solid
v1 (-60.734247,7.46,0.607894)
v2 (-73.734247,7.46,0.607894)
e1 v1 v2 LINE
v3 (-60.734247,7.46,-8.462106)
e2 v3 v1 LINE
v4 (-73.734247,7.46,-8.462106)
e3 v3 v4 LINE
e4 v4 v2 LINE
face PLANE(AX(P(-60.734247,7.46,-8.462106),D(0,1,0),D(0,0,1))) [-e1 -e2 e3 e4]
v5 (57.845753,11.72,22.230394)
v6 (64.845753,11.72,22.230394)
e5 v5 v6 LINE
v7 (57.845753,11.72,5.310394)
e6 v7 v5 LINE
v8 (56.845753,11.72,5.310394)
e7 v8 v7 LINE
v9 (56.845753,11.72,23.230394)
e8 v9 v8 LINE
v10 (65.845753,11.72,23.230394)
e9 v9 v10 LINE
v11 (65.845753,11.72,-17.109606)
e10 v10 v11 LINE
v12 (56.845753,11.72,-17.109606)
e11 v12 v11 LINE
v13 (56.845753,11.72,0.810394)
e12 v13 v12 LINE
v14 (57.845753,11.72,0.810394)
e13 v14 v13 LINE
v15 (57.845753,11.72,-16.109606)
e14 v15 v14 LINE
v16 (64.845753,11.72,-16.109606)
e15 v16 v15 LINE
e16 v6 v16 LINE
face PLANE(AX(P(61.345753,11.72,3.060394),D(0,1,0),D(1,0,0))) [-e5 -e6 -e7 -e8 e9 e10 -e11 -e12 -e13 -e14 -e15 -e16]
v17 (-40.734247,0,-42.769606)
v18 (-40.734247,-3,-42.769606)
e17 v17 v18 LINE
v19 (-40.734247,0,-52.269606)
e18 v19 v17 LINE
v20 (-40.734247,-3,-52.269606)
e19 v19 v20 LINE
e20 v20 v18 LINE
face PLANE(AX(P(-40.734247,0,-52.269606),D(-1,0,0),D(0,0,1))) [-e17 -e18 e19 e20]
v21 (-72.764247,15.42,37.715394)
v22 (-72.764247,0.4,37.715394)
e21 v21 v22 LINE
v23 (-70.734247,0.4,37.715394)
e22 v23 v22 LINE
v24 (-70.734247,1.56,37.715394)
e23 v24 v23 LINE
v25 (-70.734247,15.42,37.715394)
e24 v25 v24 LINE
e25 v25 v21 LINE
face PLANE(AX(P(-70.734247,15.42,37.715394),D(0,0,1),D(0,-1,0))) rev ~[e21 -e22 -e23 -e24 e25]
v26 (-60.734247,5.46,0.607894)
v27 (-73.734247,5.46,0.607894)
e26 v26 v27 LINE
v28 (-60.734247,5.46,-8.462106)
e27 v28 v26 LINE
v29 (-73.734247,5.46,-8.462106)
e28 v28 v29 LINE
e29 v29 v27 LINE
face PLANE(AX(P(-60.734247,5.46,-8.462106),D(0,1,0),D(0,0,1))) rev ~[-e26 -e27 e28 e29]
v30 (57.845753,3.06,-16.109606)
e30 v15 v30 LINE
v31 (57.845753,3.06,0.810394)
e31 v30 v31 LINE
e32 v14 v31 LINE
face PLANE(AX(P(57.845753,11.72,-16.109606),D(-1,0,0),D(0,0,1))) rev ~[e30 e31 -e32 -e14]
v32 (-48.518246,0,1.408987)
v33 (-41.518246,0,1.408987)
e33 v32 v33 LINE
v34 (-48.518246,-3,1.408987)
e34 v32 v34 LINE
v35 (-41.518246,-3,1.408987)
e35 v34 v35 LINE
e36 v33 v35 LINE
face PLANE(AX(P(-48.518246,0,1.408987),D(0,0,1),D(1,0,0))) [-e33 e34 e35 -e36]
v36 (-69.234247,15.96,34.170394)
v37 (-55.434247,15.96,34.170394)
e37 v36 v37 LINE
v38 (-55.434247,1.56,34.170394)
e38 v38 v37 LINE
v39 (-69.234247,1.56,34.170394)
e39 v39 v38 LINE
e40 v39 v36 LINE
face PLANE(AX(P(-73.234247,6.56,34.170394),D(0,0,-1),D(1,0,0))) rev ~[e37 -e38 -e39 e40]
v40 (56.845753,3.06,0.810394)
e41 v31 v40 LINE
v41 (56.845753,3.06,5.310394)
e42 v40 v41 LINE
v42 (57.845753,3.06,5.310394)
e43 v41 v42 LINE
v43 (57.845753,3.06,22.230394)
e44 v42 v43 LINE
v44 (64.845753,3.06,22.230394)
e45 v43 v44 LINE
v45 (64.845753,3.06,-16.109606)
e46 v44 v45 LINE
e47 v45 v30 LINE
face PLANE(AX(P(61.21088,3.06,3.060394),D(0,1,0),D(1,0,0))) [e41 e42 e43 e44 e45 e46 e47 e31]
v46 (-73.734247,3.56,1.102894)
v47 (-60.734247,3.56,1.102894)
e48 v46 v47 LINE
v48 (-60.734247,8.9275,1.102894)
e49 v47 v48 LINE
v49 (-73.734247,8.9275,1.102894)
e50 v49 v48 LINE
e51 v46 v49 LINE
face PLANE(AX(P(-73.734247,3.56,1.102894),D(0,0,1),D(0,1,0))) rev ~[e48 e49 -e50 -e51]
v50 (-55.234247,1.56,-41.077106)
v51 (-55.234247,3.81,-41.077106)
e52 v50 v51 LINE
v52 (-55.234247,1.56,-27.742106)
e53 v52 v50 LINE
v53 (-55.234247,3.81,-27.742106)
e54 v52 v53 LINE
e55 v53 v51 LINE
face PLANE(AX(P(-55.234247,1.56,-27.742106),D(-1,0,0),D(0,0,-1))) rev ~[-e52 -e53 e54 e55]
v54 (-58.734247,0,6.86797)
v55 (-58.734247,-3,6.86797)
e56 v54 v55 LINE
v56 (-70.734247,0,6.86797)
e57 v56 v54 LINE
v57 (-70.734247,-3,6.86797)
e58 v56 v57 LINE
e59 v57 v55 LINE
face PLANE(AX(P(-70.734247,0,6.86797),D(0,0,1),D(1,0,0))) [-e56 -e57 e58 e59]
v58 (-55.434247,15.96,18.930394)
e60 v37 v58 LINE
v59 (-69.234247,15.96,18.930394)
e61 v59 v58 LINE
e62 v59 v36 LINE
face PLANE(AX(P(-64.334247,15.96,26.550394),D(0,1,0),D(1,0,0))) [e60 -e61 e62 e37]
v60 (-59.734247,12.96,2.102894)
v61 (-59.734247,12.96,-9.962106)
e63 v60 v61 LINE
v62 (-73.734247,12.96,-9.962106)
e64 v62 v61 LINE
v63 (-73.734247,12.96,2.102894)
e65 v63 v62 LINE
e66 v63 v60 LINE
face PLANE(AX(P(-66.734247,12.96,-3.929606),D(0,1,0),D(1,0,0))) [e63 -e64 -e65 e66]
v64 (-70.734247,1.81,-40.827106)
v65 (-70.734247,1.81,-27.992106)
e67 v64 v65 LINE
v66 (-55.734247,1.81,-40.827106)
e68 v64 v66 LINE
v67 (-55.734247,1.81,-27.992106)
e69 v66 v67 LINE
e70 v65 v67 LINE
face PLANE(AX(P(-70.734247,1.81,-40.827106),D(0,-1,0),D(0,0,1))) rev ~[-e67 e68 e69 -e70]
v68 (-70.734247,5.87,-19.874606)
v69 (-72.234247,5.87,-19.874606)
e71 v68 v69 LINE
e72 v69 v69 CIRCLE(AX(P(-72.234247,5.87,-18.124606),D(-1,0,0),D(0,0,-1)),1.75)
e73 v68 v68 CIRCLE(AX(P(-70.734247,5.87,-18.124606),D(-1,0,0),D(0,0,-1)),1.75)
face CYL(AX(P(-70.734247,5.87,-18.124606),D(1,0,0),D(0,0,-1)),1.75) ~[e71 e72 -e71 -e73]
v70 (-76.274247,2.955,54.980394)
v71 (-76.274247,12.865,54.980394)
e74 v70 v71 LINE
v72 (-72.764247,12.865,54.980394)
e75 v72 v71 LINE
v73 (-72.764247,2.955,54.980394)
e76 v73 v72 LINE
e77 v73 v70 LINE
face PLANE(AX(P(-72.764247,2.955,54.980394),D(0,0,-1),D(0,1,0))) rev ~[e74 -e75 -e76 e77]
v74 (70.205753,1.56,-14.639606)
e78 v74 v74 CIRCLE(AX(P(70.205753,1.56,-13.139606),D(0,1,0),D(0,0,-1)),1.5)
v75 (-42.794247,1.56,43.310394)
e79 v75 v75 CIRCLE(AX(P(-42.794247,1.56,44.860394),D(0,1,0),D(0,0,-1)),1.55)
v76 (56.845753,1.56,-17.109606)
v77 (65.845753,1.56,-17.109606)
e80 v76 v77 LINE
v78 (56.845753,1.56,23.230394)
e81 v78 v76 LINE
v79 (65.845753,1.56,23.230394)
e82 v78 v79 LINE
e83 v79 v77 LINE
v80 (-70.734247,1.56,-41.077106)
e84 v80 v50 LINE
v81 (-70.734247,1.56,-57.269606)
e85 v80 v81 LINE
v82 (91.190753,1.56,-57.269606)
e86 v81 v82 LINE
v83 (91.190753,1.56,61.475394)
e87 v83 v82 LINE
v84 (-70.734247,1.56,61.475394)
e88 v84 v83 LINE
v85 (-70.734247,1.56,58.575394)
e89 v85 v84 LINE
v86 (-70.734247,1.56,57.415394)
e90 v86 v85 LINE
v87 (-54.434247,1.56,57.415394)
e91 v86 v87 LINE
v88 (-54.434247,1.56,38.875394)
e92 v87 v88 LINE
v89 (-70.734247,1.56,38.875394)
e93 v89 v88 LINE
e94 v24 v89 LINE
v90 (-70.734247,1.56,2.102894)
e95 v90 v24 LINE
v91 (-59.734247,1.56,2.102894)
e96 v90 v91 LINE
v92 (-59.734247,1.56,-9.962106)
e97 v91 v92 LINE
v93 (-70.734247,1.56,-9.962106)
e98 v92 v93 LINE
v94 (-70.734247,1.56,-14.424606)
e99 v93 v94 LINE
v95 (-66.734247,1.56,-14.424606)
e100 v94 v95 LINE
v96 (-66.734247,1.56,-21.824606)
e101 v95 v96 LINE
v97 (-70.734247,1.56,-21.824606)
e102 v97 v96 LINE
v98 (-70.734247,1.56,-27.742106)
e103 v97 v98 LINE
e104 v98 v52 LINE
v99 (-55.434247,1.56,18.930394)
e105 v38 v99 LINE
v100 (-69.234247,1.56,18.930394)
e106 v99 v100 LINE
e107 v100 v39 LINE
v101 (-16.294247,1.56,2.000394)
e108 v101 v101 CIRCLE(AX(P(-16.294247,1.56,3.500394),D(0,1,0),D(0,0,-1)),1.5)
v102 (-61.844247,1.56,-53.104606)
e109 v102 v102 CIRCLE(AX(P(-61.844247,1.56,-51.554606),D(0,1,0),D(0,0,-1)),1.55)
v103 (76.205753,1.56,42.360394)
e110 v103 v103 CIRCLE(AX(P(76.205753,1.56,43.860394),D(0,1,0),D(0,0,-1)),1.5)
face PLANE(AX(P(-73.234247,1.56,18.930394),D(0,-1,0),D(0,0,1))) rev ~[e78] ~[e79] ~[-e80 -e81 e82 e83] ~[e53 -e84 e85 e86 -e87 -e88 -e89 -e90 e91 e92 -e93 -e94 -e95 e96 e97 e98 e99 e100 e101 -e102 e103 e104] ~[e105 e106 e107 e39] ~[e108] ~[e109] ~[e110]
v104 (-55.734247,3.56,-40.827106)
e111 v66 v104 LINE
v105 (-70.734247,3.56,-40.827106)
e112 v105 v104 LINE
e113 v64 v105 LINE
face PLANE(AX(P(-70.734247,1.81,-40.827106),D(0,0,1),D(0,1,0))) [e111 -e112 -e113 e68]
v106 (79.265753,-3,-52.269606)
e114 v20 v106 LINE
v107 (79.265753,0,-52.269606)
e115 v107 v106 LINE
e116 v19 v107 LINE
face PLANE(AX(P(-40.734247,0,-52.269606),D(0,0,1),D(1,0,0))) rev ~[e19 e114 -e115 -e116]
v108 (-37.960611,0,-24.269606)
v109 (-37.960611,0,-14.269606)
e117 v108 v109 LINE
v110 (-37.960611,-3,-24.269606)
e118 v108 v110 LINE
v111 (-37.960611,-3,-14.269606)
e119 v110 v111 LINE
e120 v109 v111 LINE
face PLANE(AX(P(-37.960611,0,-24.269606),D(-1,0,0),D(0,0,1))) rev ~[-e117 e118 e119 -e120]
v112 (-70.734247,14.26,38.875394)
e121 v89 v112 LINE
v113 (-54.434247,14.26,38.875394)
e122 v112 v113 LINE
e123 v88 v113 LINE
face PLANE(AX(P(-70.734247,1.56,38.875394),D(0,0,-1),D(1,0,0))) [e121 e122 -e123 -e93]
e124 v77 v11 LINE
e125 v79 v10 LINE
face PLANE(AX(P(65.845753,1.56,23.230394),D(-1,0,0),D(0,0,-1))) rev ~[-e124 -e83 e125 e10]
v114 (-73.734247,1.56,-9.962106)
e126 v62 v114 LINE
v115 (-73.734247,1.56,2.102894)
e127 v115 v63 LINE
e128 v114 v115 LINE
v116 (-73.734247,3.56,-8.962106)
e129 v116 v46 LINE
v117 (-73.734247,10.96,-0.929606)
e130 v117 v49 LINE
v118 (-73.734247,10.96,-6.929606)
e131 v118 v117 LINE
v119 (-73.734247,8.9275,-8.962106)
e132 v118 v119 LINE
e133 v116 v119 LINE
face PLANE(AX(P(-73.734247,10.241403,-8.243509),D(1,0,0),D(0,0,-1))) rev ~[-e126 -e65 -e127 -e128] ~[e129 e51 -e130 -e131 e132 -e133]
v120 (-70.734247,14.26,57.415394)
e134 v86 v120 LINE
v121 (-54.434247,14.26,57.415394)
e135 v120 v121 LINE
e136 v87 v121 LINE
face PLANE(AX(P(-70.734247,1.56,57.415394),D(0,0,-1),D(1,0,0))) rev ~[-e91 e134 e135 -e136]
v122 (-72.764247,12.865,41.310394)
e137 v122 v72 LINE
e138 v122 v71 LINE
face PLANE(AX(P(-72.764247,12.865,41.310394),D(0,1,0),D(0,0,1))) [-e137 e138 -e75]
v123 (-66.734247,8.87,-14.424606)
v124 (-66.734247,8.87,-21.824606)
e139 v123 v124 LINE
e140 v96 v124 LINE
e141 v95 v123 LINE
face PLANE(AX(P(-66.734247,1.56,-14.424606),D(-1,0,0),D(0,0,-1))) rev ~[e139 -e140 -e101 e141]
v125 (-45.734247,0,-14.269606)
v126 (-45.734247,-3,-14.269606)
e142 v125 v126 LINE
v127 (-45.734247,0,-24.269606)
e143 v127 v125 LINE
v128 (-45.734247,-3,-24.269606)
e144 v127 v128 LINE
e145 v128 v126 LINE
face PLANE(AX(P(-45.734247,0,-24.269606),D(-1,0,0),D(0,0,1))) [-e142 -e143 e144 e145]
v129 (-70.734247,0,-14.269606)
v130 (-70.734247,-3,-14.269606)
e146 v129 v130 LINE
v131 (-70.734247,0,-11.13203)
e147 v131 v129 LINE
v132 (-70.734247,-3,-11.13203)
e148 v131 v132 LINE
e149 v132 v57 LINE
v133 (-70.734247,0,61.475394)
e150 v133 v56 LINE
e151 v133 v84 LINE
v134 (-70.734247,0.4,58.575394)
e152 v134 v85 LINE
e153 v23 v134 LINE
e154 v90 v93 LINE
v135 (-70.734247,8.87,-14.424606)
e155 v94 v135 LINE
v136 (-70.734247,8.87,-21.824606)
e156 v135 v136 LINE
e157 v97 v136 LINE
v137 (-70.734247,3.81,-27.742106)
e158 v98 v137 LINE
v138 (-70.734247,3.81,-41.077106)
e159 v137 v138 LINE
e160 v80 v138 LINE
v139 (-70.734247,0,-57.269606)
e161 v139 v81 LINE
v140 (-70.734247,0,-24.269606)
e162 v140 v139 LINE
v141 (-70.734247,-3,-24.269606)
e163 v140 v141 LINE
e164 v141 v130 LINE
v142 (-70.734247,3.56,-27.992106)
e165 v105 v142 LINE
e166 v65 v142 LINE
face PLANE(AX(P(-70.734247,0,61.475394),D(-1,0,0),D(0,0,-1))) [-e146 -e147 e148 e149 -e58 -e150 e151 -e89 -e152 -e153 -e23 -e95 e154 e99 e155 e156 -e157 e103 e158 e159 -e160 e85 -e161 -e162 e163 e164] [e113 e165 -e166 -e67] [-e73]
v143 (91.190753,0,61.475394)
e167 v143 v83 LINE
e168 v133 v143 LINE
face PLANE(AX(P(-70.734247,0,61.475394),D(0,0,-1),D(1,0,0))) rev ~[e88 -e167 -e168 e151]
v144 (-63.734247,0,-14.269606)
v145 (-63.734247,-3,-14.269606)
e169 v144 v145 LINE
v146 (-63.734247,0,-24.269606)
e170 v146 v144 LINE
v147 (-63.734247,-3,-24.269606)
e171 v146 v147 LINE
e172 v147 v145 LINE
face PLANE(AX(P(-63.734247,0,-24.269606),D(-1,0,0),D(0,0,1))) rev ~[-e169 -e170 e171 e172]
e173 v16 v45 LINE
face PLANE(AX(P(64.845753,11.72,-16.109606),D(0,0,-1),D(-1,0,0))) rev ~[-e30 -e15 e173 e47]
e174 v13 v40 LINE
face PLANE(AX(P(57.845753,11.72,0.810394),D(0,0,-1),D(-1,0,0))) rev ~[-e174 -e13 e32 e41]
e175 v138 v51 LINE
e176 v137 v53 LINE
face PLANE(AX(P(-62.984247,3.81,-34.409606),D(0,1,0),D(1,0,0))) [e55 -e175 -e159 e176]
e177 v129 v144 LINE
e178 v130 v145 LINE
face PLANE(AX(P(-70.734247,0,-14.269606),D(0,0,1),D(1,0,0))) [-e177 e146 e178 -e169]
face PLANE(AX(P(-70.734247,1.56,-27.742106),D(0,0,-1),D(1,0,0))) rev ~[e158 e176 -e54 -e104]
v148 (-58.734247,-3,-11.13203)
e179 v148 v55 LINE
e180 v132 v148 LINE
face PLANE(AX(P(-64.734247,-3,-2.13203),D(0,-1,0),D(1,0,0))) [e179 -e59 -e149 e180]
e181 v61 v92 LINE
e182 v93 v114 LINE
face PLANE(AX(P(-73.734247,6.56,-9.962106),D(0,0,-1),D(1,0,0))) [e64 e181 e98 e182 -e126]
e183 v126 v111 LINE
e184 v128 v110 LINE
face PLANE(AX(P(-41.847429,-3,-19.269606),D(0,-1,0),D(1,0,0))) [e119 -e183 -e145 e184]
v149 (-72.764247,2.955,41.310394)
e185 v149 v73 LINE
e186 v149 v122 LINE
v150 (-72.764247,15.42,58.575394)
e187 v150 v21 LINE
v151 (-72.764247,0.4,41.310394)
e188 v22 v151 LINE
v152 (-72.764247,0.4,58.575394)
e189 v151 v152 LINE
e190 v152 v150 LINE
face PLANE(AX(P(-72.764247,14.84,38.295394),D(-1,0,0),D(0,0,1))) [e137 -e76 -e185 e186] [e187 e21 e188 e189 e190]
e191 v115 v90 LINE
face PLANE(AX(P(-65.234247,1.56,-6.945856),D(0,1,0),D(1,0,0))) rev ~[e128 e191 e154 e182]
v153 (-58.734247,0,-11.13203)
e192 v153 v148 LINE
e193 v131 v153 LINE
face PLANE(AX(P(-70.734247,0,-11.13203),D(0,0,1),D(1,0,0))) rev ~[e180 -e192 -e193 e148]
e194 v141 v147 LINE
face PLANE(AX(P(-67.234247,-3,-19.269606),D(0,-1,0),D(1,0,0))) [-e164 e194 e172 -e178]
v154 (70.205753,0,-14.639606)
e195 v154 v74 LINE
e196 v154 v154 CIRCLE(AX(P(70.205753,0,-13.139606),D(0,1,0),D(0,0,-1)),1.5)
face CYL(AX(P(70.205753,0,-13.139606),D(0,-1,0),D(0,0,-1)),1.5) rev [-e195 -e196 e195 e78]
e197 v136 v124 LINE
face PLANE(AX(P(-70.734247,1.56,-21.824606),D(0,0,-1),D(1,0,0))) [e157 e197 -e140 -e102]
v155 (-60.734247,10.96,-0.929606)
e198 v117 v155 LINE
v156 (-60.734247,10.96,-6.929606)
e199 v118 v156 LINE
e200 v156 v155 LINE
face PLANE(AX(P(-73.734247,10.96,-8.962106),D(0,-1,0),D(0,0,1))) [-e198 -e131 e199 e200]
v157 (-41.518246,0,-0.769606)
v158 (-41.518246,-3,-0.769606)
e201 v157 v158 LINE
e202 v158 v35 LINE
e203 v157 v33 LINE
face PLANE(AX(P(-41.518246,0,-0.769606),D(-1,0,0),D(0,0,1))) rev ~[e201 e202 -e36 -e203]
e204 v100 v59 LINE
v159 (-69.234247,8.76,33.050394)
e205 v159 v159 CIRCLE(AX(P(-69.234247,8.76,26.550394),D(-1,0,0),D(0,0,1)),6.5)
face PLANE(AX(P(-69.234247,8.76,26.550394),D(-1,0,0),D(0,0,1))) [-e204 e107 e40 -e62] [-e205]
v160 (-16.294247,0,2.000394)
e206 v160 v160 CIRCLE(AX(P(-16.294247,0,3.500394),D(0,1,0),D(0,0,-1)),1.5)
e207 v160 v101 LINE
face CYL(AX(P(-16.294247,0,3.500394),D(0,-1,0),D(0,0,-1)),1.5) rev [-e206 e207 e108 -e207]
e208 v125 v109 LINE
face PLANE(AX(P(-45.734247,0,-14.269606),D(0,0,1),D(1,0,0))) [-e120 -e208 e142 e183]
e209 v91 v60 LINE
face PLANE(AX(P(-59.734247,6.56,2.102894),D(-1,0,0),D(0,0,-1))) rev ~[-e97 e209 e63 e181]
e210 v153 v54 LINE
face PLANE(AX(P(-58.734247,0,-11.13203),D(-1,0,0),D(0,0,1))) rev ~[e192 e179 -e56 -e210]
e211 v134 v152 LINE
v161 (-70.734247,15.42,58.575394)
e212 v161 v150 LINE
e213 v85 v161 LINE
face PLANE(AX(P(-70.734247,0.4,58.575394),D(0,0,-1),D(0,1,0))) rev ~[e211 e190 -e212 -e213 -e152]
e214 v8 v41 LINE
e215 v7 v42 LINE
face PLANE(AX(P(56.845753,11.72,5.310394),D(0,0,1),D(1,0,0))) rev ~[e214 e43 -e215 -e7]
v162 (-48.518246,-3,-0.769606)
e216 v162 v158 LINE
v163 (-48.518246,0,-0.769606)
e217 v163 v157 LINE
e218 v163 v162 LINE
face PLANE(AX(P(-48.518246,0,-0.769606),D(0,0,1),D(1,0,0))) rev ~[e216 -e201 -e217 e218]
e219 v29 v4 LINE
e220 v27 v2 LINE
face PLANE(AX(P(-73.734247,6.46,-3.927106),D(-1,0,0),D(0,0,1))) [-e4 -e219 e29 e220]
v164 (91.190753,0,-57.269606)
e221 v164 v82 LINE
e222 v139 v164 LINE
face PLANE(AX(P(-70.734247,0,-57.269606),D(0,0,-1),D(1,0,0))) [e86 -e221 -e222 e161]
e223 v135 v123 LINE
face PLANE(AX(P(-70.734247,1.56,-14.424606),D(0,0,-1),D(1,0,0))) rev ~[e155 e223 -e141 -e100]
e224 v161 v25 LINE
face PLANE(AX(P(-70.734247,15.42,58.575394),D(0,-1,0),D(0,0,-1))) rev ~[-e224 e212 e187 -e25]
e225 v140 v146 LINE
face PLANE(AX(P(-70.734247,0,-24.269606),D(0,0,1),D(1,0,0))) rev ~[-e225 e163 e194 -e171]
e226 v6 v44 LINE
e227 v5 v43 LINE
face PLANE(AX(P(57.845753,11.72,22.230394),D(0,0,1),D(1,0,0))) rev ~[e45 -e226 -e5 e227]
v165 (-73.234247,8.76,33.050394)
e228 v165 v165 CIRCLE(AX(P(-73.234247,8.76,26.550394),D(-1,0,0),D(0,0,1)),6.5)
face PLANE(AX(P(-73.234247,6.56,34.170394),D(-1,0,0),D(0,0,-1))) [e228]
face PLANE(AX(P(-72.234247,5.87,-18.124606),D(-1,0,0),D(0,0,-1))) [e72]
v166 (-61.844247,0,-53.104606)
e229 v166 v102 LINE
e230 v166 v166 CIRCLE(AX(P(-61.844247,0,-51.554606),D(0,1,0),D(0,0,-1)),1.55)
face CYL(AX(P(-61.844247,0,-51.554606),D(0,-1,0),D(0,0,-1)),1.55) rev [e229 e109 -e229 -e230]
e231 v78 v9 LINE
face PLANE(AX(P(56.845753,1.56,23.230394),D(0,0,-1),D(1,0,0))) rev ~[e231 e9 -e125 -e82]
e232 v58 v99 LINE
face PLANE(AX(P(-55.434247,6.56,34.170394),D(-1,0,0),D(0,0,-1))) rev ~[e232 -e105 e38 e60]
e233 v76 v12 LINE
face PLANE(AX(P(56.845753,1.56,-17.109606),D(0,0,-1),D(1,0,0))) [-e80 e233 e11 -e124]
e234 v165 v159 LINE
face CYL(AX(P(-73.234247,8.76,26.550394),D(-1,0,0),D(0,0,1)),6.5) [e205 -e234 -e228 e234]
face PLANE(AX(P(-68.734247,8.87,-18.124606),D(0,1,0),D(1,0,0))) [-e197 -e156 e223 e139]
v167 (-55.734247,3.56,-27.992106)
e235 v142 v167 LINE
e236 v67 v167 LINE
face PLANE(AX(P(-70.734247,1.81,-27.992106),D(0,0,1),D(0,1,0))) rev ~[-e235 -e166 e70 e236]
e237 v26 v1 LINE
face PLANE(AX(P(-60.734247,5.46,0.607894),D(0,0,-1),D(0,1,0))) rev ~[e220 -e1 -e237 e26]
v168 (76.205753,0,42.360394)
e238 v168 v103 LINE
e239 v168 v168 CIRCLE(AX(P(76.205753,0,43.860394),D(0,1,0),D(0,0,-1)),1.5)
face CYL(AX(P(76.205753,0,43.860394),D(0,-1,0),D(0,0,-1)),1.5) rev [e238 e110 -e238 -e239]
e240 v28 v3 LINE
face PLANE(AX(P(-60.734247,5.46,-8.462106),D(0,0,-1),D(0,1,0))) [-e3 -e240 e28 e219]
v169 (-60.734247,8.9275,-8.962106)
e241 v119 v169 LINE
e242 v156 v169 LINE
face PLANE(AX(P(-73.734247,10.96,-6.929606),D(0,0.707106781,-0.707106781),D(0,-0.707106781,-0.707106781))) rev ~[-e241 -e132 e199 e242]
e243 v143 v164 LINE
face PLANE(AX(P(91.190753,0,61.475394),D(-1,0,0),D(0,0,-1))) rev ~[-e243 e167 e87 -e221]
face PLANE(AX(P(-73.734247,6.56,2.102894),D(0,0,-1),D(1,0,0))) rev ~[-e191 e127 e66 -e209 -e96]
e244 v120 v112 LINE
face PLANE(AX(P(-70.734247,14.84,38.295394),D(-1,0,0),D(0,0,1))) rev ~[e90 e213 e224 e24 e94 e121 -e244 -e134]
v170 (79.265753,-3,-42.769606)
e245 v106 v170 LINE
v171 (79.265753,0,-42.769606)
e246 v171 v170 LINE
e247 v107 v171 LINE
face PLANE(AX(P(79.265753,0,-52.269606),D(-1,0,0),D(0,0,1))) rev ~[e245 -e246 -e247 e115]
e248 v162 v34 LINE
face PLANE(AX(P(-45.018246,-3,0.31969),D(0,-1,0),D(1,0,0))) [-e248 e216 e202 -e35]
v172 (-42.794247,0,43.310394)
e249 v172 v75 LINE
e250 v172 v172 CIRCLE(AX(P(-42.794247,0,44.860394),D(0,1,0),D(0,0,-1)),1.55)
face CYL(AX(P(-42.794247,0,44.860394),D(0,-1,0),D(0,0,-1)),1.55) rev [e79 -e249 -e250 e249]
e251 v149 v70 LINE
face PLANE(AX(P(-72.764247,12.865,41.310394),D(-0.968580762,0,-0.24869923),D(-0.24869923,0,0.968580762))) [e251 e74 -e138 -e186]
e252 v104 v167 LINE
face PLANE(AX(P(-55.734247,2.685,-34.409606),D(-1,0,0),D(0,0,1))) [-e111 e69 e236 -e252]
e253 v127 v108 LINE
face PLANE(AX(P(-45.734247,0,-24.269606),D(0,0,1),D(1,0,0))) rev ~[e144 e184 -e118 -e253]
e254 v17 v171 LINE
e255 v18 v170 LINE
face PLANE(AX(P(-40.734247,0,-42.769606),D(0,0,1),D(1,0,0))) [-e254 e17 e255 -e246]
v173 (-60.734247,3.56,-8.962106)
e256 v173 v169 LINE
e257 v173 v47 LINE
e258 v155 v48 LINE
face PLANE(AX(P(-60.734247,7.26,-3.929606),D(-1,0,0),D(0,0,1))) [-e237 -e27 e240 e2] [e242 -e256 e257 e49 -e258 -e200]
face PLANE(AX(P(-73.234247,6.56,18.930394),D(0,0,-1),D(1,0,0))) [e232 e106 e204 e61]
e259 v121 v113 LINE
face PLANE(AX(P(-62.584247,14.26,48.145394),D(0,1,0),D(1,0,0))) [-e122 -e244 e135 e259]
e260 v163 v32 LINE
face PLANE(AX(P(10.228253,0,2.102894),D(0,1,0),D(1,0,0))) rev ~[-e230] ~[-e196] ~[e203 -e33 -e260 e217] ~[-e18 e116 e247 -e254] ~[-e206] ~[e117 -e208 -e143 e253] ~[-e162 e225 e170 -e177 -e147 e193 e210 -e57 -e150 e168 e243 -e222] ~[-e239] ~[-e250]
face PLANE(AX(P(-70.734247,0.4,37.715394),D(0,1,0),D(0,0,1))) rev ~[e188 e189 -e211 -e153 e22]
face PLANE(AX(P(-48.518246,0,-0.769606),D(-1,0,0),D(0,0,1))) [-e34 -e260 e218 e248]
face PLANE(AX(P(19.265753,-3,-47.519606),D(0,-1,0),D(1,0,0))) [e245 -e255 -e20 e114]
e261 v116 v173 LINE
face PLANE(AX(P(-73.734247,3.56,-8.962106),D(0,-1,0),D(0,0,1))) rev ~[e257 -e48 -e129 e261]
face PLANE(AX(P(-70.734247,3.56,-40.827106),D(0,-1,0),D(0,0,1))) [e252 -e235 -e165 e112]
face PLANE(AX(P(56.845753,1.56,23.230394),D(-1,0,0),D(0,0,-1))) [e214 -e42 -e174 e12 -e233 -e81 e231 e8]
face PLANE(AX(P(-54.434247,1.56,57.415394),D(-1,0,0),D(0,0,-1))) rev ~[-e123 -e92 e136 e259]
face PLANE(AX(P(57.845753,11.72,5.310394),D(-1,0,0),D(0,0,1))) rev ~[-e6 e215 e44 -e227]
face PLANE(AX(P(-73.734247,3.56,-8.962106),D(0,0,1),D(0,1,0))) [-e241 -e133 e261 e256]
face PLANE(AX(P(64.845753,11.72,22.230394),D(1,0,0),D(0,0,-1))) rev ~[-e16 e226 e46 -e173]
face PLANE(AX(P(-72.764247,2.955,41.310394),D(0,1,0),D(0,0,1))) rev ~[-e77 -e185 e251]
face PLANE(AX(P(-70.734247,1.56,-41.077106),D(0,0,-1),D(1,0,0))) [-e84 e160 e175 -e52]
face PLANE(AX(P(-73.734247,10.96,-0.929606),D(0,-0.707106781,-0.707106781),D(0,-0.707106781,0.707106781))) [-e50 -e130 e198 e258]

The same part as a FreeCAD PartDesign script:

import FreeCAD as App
import Part
import Sketcher
Q = App.Units.Quantity


def add_polygon(sketch, points):
    """Adds a closed chain of lines whose ends are joined by coincident constraints."""
    first, n = sketch.GeometryCount, len(points)
    for a, b in zip(points, points[1:] + points[:1]):
        sketch.addGeometry(Part.LineSegment(App.Vector(*a, 0), App.Vector(*b, 0)), False)
    for i in range(n):
        sketch.addConstraint(Sketcher.Constraint("Coincident", first + i, 2, first + (i + 1) % n, 1))

doc = App.newDocument("Part")
body = doc.addObject("PartDesign::Body", "Body")

sketch1 = doc.addObject("Sketcher::SketchObject", "Sketch")
body.addObject(sketch1)
sketch1.AttachmentSupport = (doc.XZ_Plane, [""])
sketch1.MapMode = "FlatFace"
add_polygon(sketch1, [(-70.7, -57.3), (-70.7, 61.5), (91.2, 61.5), (91.2, -57.3)])
sketch1.addGeometry(Part.Circle(App.Vector(-42.8, 44.9, 0), App.Vector(0, 0, 1), 1.6), False)
sketch1.addGeometry(Part.Circle(App.Vector(-16.3, 3.5, 0), App.Vector(0, 0, 1), 1.5), False)
sketch1.addGeometry(Part.Circle(App.Vector(76.2, 43.9, 0), App.Vector(0, 0, 1), 1.5), False)
sketch1.addGeometry(Part.Circle(App.Vector(-61.8, -51.6, 0), App.Vector(0, 0, 1), 1.6), False)
sketch1.addGeometry(Part.Circle(App.Vector(70.2, -13.1, 0), App.Vector(0, 0, 1), 1.5), False)
sketch1.addConstraint([
    Sketcher.Constraint("Vertical", 0),
    Sketcher.Constraint("Horizontal", 1),
    Sketcher.Constraint("Vertical", 2),
    Sketcher.Constraint("Horizontal", 3),
    Sketcher.Constraint("Equal", 5, 6),
    Sketcher.Constraint("Equal", 4, 7),
    Sketcher.Constraint("Equal", 6, 8),
    Sketcher.Constraint("Diameter", 5, Q("3 mm")),
    Sketcher.Constraint("Diameter", 4, Q("3.1 mm")),
    Sketcher.Constraint("DistanceX", 4, 3, 6, 3, Q("119 mm")),
    Sketcher.Constraint("DistanceY", 6, 3, 4, 3, Q("1 mm")),
    Sketcher.Constraint("DistanceX", 8, 3, 6, 3, Q("6 mm")),
    Sketcher.Constraint("DistanceY", 8, 3, 6, 3, Q("57 mm")),
    Sketcher.Constraint("DistanceX", 4, 3, 5, 3, Q("26.5 mm")),
    Sketcher.Constraint("DistanceX", 1, 1, 1, 2, Q("161.925 mm")),
    Sketcher.Constraint("DistanceY", 0, 1, 0, 2, Q("118.745 mm")),
    Sketcher.Constraint("DistanceY", 5, 3, 4, 3, Q("41.36 mm")),
    Sketcher.Constraint("DistanceX", 7, 3, 5, 3, Q("45.55 mm")),
    Sketcher.Constraint("DistanceX", 0, 2, 4, 3, Q("27.94 mm")),
    Sketcher.Constraint("DistanceY", 7, 3, 0, 2, Q("113.03 mm")),
    Sketcher.Constraint("DistanceY", 2, 2, 8, 3, Q("44.13 mm")),
    Sketcher.Constraint("DistanceX", 4, 3, -1, 1, Q("42.794247 mm")),
    Sketcher.Constraint("DistanceY", -1, 1, 4, 3, Q("44.860394 mm")),
])
pad1 = doc.addObject("PartDesign::Pad", "Pad")
body.addObject(pad1)
pad1.Profile = sketch1
pad1.Length = 1.56
pad1.Reversed = True

sketch2 = doc.addObject("Sketcher::SketchObject", "Sketch001")
body.addObject(sketch2)
sketch2.AttachmentSupport = (doc.XZ_Plane, [""])
sketch2.MapMode = "FlatFace"
sketch2.AttachmentOffset = App.Placement(App.Vector(0, 0, -1.56), App.Rotation())
add_polygon(sketch2, [(-71, 38), (-71, 59), (-51, 59), (-51, 38)])
add_polygon(sketch2, [(-55, 34), (-55, 19), (-73, 19), (-73, 34)])
add_polygon(sketch2, [(-60, -10), (-74, -10), (-74, 2), (-60, 2)])
add_polygon(sketch2, [(-71, -41), (-71, -28), (-55, -28), (-55, -41)])
sketch2.addConstraint([
    Sketcher.Constraint("Vertical", 0),
    Sketcher.Constraint("Horizontal", 1),
    Sketcher.Constraint("Vertical", 2),
    Sketcher.Constraint("Horizontal", 3),
    Sketcher.Constraint("Vertical", 4),
    Sketcher.Constraint("Horizontal", 5),
    Sketcher.Constraint("Vertical", 6),
    Sketcher.Constraint("Horizontal", 7),
    Sketcher.Constraint("Horizontal", 8),
    Sketcher.Constraint("Vertical", 9),
    Sketcher.Constraint("Horizontal", 10),
    Sketcher.Constraint("Vertical", 11),
    Sketcher.Constraint("Vertical", 12),
    Sketcher.Constraint("Horizontal", 13),
    Sketcher.Constraint("Vertical", 14),
    Sketcher.Constraint("Horizontal", 15),
    Sketcher.Constraint("Vertical", 3, 2, 12, 2),
    Sketcher.Constraint("DistanceX", 1, 1, 1, 2, Q("20 mm")),
    Sketcher.Constraint("DistanceX", 8, 2, 8, 1, Q("14 mm")),
    Sketcher.Constraint("DistanceX", 5, 2, 5, 1, Q("17.8 mm")),
    Sketcher.Constraint("DistanceX", 13, 1, 13, 2, Q("15.5 mm")),
    Sketcher.Constraint("DistanceX", 8, 2, 3, 2, Q("3 mm")),
    Sketcher.Constraint("DistanceY", 4, 2, 4, 1, Q("15.24 mm")),
    Sketcher.Constraint("DistanceX", 4, 2, 2, 2, Q("4.7 mm")),
    Sketcher.Constraint("DistanceY", 0, 1, 0, 2, Q("20.955 mm")),
    Sketcher.Constraint("DistanceY", 9, 1, 9, 2, Q("12.065 mm")),
    Sketcher.Constraint("DistanceY", 12, 1, 12, 2, Q("13.335 mm")),
    Sketcher.Constraint("DistanceY", 9, 2, 3, 2, Q("35.56 mm")),
    Sketcher.Constraint("DistanceY", 12, 2, 8, 2, Q("17.78 mm")),
    Sketcher.Constraint("DistanceY", 4, 2, 2, 2, Q("18.7325 mm")),
    Sketcher.Constraint("DistanceX", 0, 2, -1, 1, Q("70.734247 mm")),
    Sketcher.Constraint("DistanceY", -1, 1, 0, 2, Q("58.617894 mm")),
])
pad2 = doc.addObject("PartDesign::Pad", "Pad001")
body.addObject(pad2)
pad2.Profile = sketch2
pad2.Length = 5
pad2.Reversed = True

sketch3 = doc.addObject("Sketcher::SketchObject", "Sketch002")
body.addObject(sketch3)
sketch3.AttachmentSupport = (doc.XZ_Plane, [""])
sketch3.MapMode = "FlatFace"
sketch3.AttachmentOffset = App.Placement(App.Vector(0, 0, -6.56), App.Rotation())
add_polygon(sketch3, [(-73, 19), (-73, 34), (-55, 34), (-55, 19)])
sketch3.addConstraint([
    Sketcher.Constraint("Vertical", 0),
    Sketcher.Constraint("Horizontal", 1),
    Sketcher.Constraint("Vertical", 2),
    Sketcher.Constraint("Horizontal", 3),
    Sketcher.Constraint("DistanceX", 1, 1, 1, 2, Q("17.8 mm")),
    Sketcher.Constraint("DistanceY", 0, 1, 0, 2, Q("15.24 mm")),
    Sketcher.Constraint("DistanceX", 0, 2, -1, 1, Q("73.234247 mm")),
    Sketcher.Constraint("DistanceY", -1, 1, 0, 2, Q("34.170394 mm")),
])
pad3 = doc.addObject("PartDesign::Pad", "Pad002")
body.addObject(pad3)
pad3.Profile = sketch3
pad3.Length = 9.4
pad3.Reversed = True

sketch4 = doc.addObject("Sketcher::SketchObject", "Sketch003")
body.addObject(sketch4)
sketch4.AttachmentSupport = (doc.YZ_Plane, [""])
sketch4.MapMode = "FlatFace"
sketch4.AttachmentOffset = App.Placement(App.Vector(0, 0, -73.234247), App.Rotation())
add_polygon(sketch4, [(16, 19), (2, 19), (2, 34), (16, 34)])
sketch4.addGeometry(Part.Circle(App.Vector(9, 27, 0), App.Vector(0, 0, 1), 6), False)
sketch4.addConstraint([
    Sketcher.Constraint("Horizontal", 0),
    Sketcher.Constraint("Vertical", 1),
    Sketcher.Constraint("Horizontal", 2),
    Sketcher.Constraint("Vertical", 3),
    Sketcher.Constraint("Diameter", 4, Q("13 mm")),
    Sketcher.Constraint("DistanceX", 0, 2, 0, 1, Q("14.4 mm")),
    Sketcher.Constraint("DistanceY", 1, 1, 1, 2, Q("15.24 mm")),
    Sketcher.Constraint("DistanceX", 0, 2, 4, 3, Q("7.2 mm")),
    Sketcher.Constraint("DistanceX", -1, 1, 4, 3, Q("8.76 mm")),
    Sketcher.Constraint("DistanceY", 0, 2, 4, 3, Q("7.62 mm")),
    Sketcher.Constraint("DistanceY", -1, 1, 4, 3, Q("26.550394 mm")),
])
pocket1 = doc.addObject("PartDesign::Pocket", "Pocket")
body.addObject(pocket1)
pocket1.Profile = sketch4
pocket1.Length = 4
pocket1.Reversed = True

sketch5 = doc.addObject("Sketcher::SketchObject", "Sketch004")
body.addObject(sketch5)
sketch5.AttachmentSupport = (doc.XZ_Plane, [""])
sketch5.MapMode = "FlatFace"
sketch5.AttachmentOffset = App.Placement(App.Vector(0, 0, -6.56), App.Rotation())
add_polygon(sketch5, [(-71, -41), (-71, -28), (-55, -28), (-55, -41)])
sketch5.addConstraint([
    Sketcher.Constraint("Vertical", 0),
    Sketcher.Constraint("Horizontal", 1),
    Sketcher.Constraint("Vertical", 2),
    Sketcher.Constraint("Horizontal", 3),
    Sketcher.Constraint("DistanceX", 1, 1, 1, 2, Q("15.5 mm")),
    Sketcher.Constraint("DistanceY", 0, 1, 0, 2, Q("13.335 mm")),
    Sketcher.Constraint("DistanceX", 0, 2, -1, 1, Q("70.734247 mm")),
    Sketcher.Constraint("DistanceY", 0, 2, -1, 1, Q("27.742106 mm")),
])
pocket2 = doc.addObject("PartDesign::Pocket", "Pocket001")
body.addObject(pocket2)
pocket2.Profile = sketch5
pocket2.Length = 2.75
pocket2.Reversed = True

sketch6 = doc.addObject("Sketcher::SketchObject", "Sketch005")
body.addObject(sketch6)
sketch6.AttachmentSupport = (doc.YZ_Plane, [""])
sketch6.MapMode = "FlatFace"
sketch6.AttachmentOffset = App.Placement(App.Vector(0, 0, -70.734247), App.Rotation())
add_polygon(sketch6, [(3.6, -40.8), (1.8, -40.8), (1.8, -28), (3.6, -28)])
sketch6.addConstraint([
    Sketcher.Constraint("Horizontal", 0),
    Sketcher.Constraint("Vertical", 1),
    Sketcher.Constraint("Horizontal", 2),
    Sketcher.Constraint("Vertical", 3),
    Sketcher.Constraint("DistanceX", 0, 2, 0, 1, Q("1.75 mm")),
    Sketcher.Constraint("DistanceY", 1, 1, 1, 2, Q("12.835 mm")),
    Sketcher.Constraint("DistanceX", -1, 1, 0, 2, Q("1.81 mm")),
    Sketcher.Constraint("DistanceY", 0, 2, -1, 1, Q("40.827106 mm")),
])
pocket3 = doc.addObject("PartDesign::Pocket", "Pocket002")
body.addObject(pocket3)
pocket3.Profile = sketch6
pocket3.Length = 15
pocket3.Reversed = True

sketch7 = doc.addObject("Sketcher::SketchObject", "Sketch006")
body.addObject(sketch7)
sketch7.AttachmentSupport = (doc.XZ_Plane, [""])
sketch7.MapMode = "FlatFace"
sketch7.AttachmentOffset = App.Placement(App.Vector(0, 0, -6.56), App.Rotation())
add_polygon(sketch7, [(-74, -10), (-74, 2), (-60, 2), (-60, -10)])
sketch7.addConstraint([
    Sketcher.Constraint("Vertical", 0),
    Sketcher.Constraint("Horizontal", 1),
    Sketcher.Constraint("Vertical", 2),
    Sketcher.Constraint("Horizontal", 3),
    Sketcher.Constraint("DistanceX", 1, 1, 1, 2, Q("14 mm")),
    Sketcher.Constraint("DistanceY", 0, 1, 0, 2, Q("12.065 mm")),
    Sketcher.Constraint("DistanceX", 0, 2, -1, 1, Q("73.734247 mm")),
    Sketcher.Constraint("DistanceY", -1, 1, 0, 2, Q("2.102894 mm")),
])
pad4 = doc.addObject("PartDesign::Pad", "Pad003")
body.addObject(pad4)
pad4.Profile = sketch7
pad4.Length = 6.4
pad4.Reversed = True

sketch8 = doc.addObject("Sketcher::SketchObject", "Sketch007")
body.addObject(sketch8)
sketch8.AttachmentSupport = (doc.YZ_Plane, [""])
sketch8.MapMode = "FlatFace"
sketch8.AttachmentOffset = App.Placement(App.Vector(0, 0, -73.734247), App.Rotation())
add_polygon(sketch8, [(11, -9), (4, -9), (4, 1), (11, 1)])
sketch8.addConstraint([
    Sketcher.Constraint("Horizontal", 0),
    Sketcher.Constraint("Vertical", 1),
    Sketcher.Constraint("Horizontal", 2),
    Sketcher.Constraint("Vertical", 3),
    Sketcher.Constraint("DistanceX", 0, 2, 0, 1, Q("7.4 mm")),
    Sketcher.Constraint("DistanceY", 1, 1, 1, 2, Q("10.065 mm")),
    Sketcher.Constraint("DistanceX", -1, 1, 0, 2, Q("3.56 mm")),
    Sketcher.Constraint("DistanceY", 0, 2, -1, 1, Q("8.962106 mm")),
])
pocket4 = doc.addObject("PartDesign::Pocket", "Pocket003")
body.addObject(pocket4)
pocket4.Profile = sketch8
pocket4.Length = 13
pocket4.Reversed = True

sketch9 = doc.addObject("Sketcher::SketchObject", "Sketch008")
body.addObject(sketch9)
sketch9.AttachmentSupport = (doc.YZ_Plane, [""])
sketch9.MapMode = "FlatFace"
sketch9.AttachmentOffset = App.Placement(App.Vector(0, 0, -60.734247), App.Rotation())
add_polygon(sketch9, [(7.5, -8.5), (5.5, -8.5), (5.5, 0.6), (7.5, 0.6)])
sketch9.addConstraint([
    Sketcher.Constraint("Horizontal", 0),
    Sketcher.Constraint("Vertical", 1),
    Sketcher.Constraint("Horizontal", 2),
    Sketcher.Constraint("Vertical", 3),
    Sketcher.Constraint("DistanceX", 0, 2, 0, 1, Q("2 mm")),
    Sketcher.Constraint("DistanceY", 1, 1, 1, 2, Q("9.07 mm")),
    Sketcher.Constraint("DistanceX", -1, 1, 0, 2, Q("5.46 mm")),
    Sketcher.Constraint("DistanceY", 0, 2, -1, 1, Q("8.462106 mm")),
])
pad5 = doc.addObject("PartDesign::Pad", "Pad004")
body.addObject(pad5)
pad5.Profile = sketch9
pad5.Length = 13
pad5.Reversed = True

sketch10 = doc.addObject("Sketcher::SketchObject", "Sketch009")
body.addObject(sketch10)
sketch10.AttachmentSupport = (doc.XZ_Plane, [""])
sketch10.MapMode = "FlatFace"
sketch10.AttachmentOffset = App.Placement(App.Vector(0, 0, -6.56), App.Rotation())
add_polygon(sketch10, [(-71.7, 58.6), (-70.7, 58.6), (-70.7, 37.7), (-71.7, 37.7), (-71.7, 36.2), (-73.8, 36.2), (-73.7, 60.1), (-71.7, 60.1)])
sketch10.addConstraint([
    Sketcher.Constraint("Horizontal", 0),
    Sketcher.Constraint("Vertical", 1),
    Sketcher.Constraint("Horizontal", 2),
    Sketcher.Constraint("Vertical", 3),
    Sketcher.Constraint("Horizontal", 4),
    Sketcher.Constraint("Horizontal", 6),
    Sketcher.Constraint("Vertical", 7),
    Sketcher.Constraint("Vertical", 3, 2, 6, 2),
    Sketcher.Constraint("Equal", 3, 7),
    Sketcher.Constraint("DistanceX", 0, 1, 0, 2, Q("1 mm")),
    Sketcher.Constraint("DistanceX", 6, 1, 6, 2, Q("2 mm")),
    Sketcher.Constraint("DistanceY", 3, 2, 3, 1, Q("1.5 mm")),
    Sketcher.Constraint("DistanceY", 1, 2, 1, 1, Q("20.955 mm")),
    Sketcher.Constraint("DistanceX", 4, 2, 4, 1, Q("2.072724 mm")),
    Sketcher.Constraint("DistanceX", 4, 2, -1, 1, Q("73.806971 mm")),
    Sketcher.Constraint("DistanceY", -1, 1, 0, 2, Q("58.617894 mm")),
])
pad6 = doc.addObject("PartDesign::Pad", "Pad005")
body.addObject(pad6)
pad6.Profile = sketch10
pad6.Length = 5

sketch11 = doc.addObject("Sketcher::SketchObject", "Sketch010")
body.addObject(sketch11)
sketch11.AttachmentSupport = (doc.XZ_Plane, [""])
sketch11.MapMode = "FlatFace"
sketch11.AttachmentOffset = App.Placement(App.Vector(0, 0, -6.56), App.Rotation())
add_polygon(sketch11, [(-50.7, 58.6), (-50.7, 37.7), (-71.7, 37.7), (-71.7, 36.2), (-73.8, 36.2), (-73.7, 60.1), (-71.7, 60.1), (-71.7, 58.6)])
sketch11.addConstraint([
    Sketcher.Constraint("Vertical", 0),
    Sketcher.Constraint("Horizontal", 1),
    Sketcher.Constraint("Vertical", 2),
    Sketcher.Constraint("Horizontal", 3),
    Sketcher.Constraint("Horizontal", 5),
    Sketcher.Constraint("Vertical", 6),
    Sketcher.Constraint("Horizontal", 7),
    Sketcher.Constraint("Vertical", 2, 2, 5, 2),
    Sketcher.Constraint("Equal", 2, 6),
    Sketcher.Constraint("DistanceX", 1, 2, 1, 1, Q("21 mm")),
    Sketcher.Constraint("DistanceX", 5, 1, 5, 2, Q("2 mm")),
    Sketcher.Constraint("DistanceY", 2, 2, 2, 1, Q("1.5 mm")),
    Sketcher.Constraint("DistanceY", 0, 2, 0, 1, Q("20.955 mm")),
    Sketcher.Constraint("DistanceX", 3, 2, 3, 1, Q("2.072724 mm")),
    Sketcher.Constraint("DistanceX", 3, 2, -1, 1, Q("73.806971 mm")),
    Sketcher.Constraint("DistanceY", -1, 1, 0, 2, Q("37.662894 mm")),
])
pad7 = doc.addObject("PartDesign::Pad", "Pad006")
body.addObject(pad7)
pad7.Profile = sketch11
pad7.Length = 4
pad7.Reversed = True

sketch12 = doc.addObject("Sketcher::SketchObject", "Sketch011")
body.addObject(sketch12)
sketch12.AttachmentSupport = (doc.XZ_Plane, [""])
sketch12.MapMode = "FlatFace"
sketch12.AttachmentOffset = App.Placement(App.Vector(0, 0, -1.56), App.Rotation())
add_polygon(sketch12, [(-80, 35), (-80, 61), (-49, 61), (-49, 35)])
sketch12.addConstraint([
    Sketcher.Constraint("Vertical", 0),
    Sketcher.Constraint("Horizontal", 1),
    Sketcher.Constraint("Vertical", 2),
    Sketcher.Constraint("Horizontal", 3),
    Sketcher.Constraint("DistanceX", 1, 2, -1, 1, Q("48.842999 mm")),
    Sketcher.Constraint("DistanceY", 0, 1, 0, 2, Q("25.604361 mm")),
    Sketcher.Constraint("DistanceX", 1, 1, 1, 2, Q("31.093634 mm")),
    Sketcher.Constraint("DistanceY", -1, 1, 0, 2, Q("60.594906 mm")),
])
pocket5 = doc.addObject("PartDesign::Pocket", "Pocket004")
body.addObject(pocket5)
pocket5.Profile = sketch12
pocket5.Length = 10

sketch13 = doc.addObject("Sketcher::SketchObject", "Sketch012")
body.addObject(sketch13)
sketch13.AttachmentSupport = (doc.XZ_Plane, [""])
sketch13.MapMode = "FlatFace"
sketch13.AttachmentOffset = App.Placement(App.Vector(0, 0, -1.56), App.Rotation())
add_polygon(sketch13, [(-71, 39), (-71, 57), (-54, 57), (-54, 39)])
sketch13.addConstraint([
    Sketcher.Constraint("Vertical", 0),
    Sketcher.Constraint("Horizontal", 1),
    Sketcher.Constraint("Vertical", 2),
    Sketcher.Constraint("Horizontal", 3),
    Sketcher.Constraint("DistanceX", 1, 1, 1, 2, Q("16.3 mm")),
    Sketcher.Constraint("DistanceY", 0, 1, 0, 2, Q("18.54 mm")),
    Sketcher.Constraint("DistanceX", 0, 2, -1, 1, Q("70.734247 mm")),
    Sketcher.Constraint("DistanceY", -1, 1, 0, 2, Q("57.415394 mm")),
])
pad8 = doc.addObject("PartDesign::Pad", "Pad007")
body.addObject(pad8)
pad8.Profile = sketch13
pad8.Length = 12.7
pad8.Reversed = True

sketch14 = doc.addObject("Sketcher::SketchObject", "Sketch013")
body.addObject(sketch14)
sketch14.AttachmentSupport = (doc.YZ_Plane, [""])
sketch14.MapMode = "FlatFace"
sketch14.AttachmentOffset = App.Placement(App.Vector(0, 0, -70.734247), App.Rotation())
add_polygon(sketch14, [(15, 38), (0, 38), (0, 59), (15, 59)])
sketch14.addConstraint([
    Sketcher.Constraint("Horizontal", 0),
    Sketcher.Constraint("Vertical", 1),
    Sketcher.Constraint("Horizontal", 2),
    Sketcher.Constraint("Vertical", 3),
    Sketcher.Constraint("DistanceX", 0, 2, 0, 1, Q("15.02 mm")),
    Sketcher.Constraint("DistanceY", 1, 1, 1, 2, Q("20.86 mm")),
    Sketcher.Constraint("DistanceX", -1, 1, 0, 2, Q("0.4 mm")),
    Sketcher.Constraint("DistanceY", -1, 1, 0, 2, Q("37.715394 mm")),
])
pad9 = doc.addObject("PartDesign::Pad", "Pad008")
body.addObject(pad9)
pad9.Profile = sketch14
pad9.Length = 2.03
pad9.Reversed = True

sketch15 = doc.addObject("Sketcher::SketchObject", "Sketch014")
body.addObject(sketch15)
sketch15.AttachmentSupport = (doc.YZ_Plane, [""])
sketch15.MapMode = "FlatFace"
sketch15.AttachmentOffset = App.Placement(App.Vector(0, 0, -72.764247), App.Rotation())
add_polygon(sketch15, [(13, 41), (3, 41), (3, 55), (13, 55)])
sketch15.addConstraint([
    Sketcher.Constraint("Horizontal", 0),
    Sketcher.Constraint("Vertical", 1),
    Sketcher.Constraint("Horizontal", 2),
    Sketcher.Constraint("Vertical", 3),
    Sketcher.Constraint("DistanceX", 0, 2, 0, 1, Q("9.91 mm")),
    Sketcher.Constraint("DistanceY", 1, 1, 1, 2, Q("13.67 mm")),
    Sketcher.Constraint("DistanceX", -1, 1, 0, 2, Q("2.955 mm")),
    Sketcher.Constraint("DistanceY", -1, 1, 0, 2, Q("41.310394 mm")),
])
pad10 = doc.addObject("PartDesign::Pad", "Pad009")
body.addObject(pad10)
pad10.Profile = sketch15
pad10.Length = 3.51
pad10.Reversed = True

sketch16 = doc.addObject("Sketcher::SketchObject", "Sketch015")
body.addObject(sketch16)
sketch16.AttachmentSupport = (doc.XZ_Plane, [""])
sketch16.MapMode = "FlatFace"
sketch16.AttachmentOffset = App.Placement(App.Vector(0, 0, -12.865), App.Rotation())
add_polygon(sketch16, [(-76.3, 55), (-72.8, 41.3), (-76.3, 41.3)])
sketch16.addConstraint([
    Sketcher.Constraint("Horizontal", 1),
    Sketcher.Constraint("Vertical", 2),
    Sketcher.Constraint("DistanceX", 1, 2, 1, 1, Q("3.51 mm")),
    Sketcher.Constraint("DistanceY", 2, 1, 2, 2, Q("13.67 mm")),
    Sketcher.Constraint("DistanceX", 0, 2, -1, 1, Q("72.764247 mm")),
    Sketcher.Constraint("DistanceY", -1, 1, 0, 2, Q("41.310394 mm")),
])
pocket6 = doc.addObject("PartDesign::Pocket", "Pocket005")
body.addObject(pocket6)
pocket6.Profile = sketch16
pocket6.Type = "ThroughAll"
pocket6.Reversed = True

sketch17 = doc.addObject("Sketcher::SketchObject", "Sketch016")
body.addObject(sketch17)
sketch17.AttachmentSupport = (doc.XZ_Plane, [""])
sketch17.MapMode = "FlatFace"
sketch17.AttachmentOffset = App.Placement(App.Vector(0, 0, -1.56), App.Rotation())
add_polygon(sketch17, [(57, -17), (57, 23), (66, 23), (66, -17)])
sketch17.addConstraint([
    Sketcher.Constraint("Vertical", 0),
    Sketcher.Constraint("Horizontal", 1),
    Sketcher.Constraint("Vertical", 2),
    Sketcher.Constraint("Horizontal", 3),
    Sketcher.Constraint("DistanceX", 1, 1, 1, 2, Q("9 mm")),
    Sketcher.Constraint("DistanceY", 0, 1, 0, 2, Q("40.34 mm")),
    Sketcher.Constraint("DistanceX", -1, 1, 0, 2, Q("56.845753 mm")),
    Sketcher.Constraint("DistanceY", -1, 1, 0, 2, Q("23.230394 mm")),
])
pad11 = doc.addObject("PartDesign::Pad", "Pad010")
body.addObject(pad11)
pad11.Profile = sketch17
pad11.Length = 10.16
pad11.Reversed = True

sketch18 = doc.addObject("Sketcher::SketchObject", "Sketch017")
body.addObject(sketch18)
sketch18.AttachmentSupport = (doc.XZ_Plane, [""])
sketch18.MapMode = "FlatFace"
sketch18.AttachmentOffset = App.Placement(App.Vector(0, 0, -11.72), App.Rotation())
add_polygon(sketch18, [(57.8, 0.8), (56.8, 0.8), (56.8, 5.3), (57.8, 5.3), (57.8, 22.2), (64.8, 22.2), (64.8, -16.1), (57.8, -16.1)])
sketch18.addConstraint([
    Sketcher.Constraint("Horizontal", 0),
    Sketcher.Constraint("Vertical", 1),
    Sketcher.Constraint("Horizontal", 2),
    Sketcher.Constraint("Vertical", 3),
    Sketcher.Constraint("Horizontal", 4),
    Sketcher.Constraint("Vertical", 5),
    Sketcher.Constraint("Horizontal", 6),
    Sketcher.Constraint("Vertical", 7),
    Sketcher.Constraint("Vertical", 3, 2, 6, 2),
    Sketcher.Constraint("Equal", 3, 7),
    Sketcher.Constraint("DistanceX", 0, 2, 0, 1, Q("1 mm")),
    Sketcher.Constraint("DistanceX", 4, 1, 4, 2, Q("7 mm")),
    Sketcher.Constraint("DistanceY", 1, 1, 1, 2, Q("4.5 mm")),
    Sketcher.Constraint("DistanceY", 3, 1, 3, 2, Q("16.92 mm")),
    Sketcher.Constraint("DistanceX", -1, 1, 0, 2, Q("56.845753 mm")),
    Sketcher.Constraint("DistanceY", -1, 1, 0, 2, Q("0.810394 mm")),
])
pocket7 = doc.addObject("PartDesign::Pocket", "Pocket006")
body.addObject(pocket7)
pocket7.Profile = sketch18
pocket7.Length = 8.66
pocket7.Reversed = True

sketch19 = doc.addObject("Sketcher::SketchObject", "Sketch018")
body.addObject(sketch19)
sketch19.AttachmentSupport = (doc.XZ_Plane, [""])
sketch19.MapMode = "FlatFace"
add_polygon(sketch19, [(-40.7, -42.8), (-40.7, -52.3), (79.3, -52.3), (79.3, -42.8)])
add_polygon(sketch19, [(-70.7, -14.3), (-70.7, -24.3), (-63.7, -24.3), (-63.7, -14.3)])
add_polygon(sketch19, [(-45.7, -14.3), (-45.7, -24.3), (-38, -24.3), (-38, -14.3)])
add_polygon(sketch19, [(-70.7, 6.9), (-70.7, -11.1), (-58.7, -11.1), (-58.7, 6.9)])
add_polygon(sketch19, [(-48.5, 1.4), (-48.5, -0.8), (-41.5, -0.8), (-41.5, 1.4)])
sketch19.addConstraint([
    Sketcher.Constraint("Vertical", 0),
    Sketcher.Constraint("Horizontal", 1),
    Sketcher.Constraint("Vertical", 2),
    Sketcher.Constraint("Horizontal", 3),
    Sketcher.Constraint("Vertical", 4),
    Sketcher.Constraint("Horizontal", 5),
    Sketcher.Constraint("Vertical", 6),
    Sketcher.Constraint("Horizontal", 7),
    Sketcher.Constraint("Vertical", 8),
    Sketcher.Constraint("Horizontal", 9),
    Sketcher.Constraint("Vertical", 10),
    Sketcher.Constraint("Horizontal", 11),
    Sketcher.Constraint("Vertical", 12),
    Sketcher.Constraint("Horizontal", 13),
    Sketcher.Constraint("Vertical", 14),
    Sketcher.Constraint("Horizontal", 15),
    Sketcher.Constraint("Vertical", 16),
    Sketcher.Constraint("Horizontal", 17),
    Sketcher.Constraint("Vertical", 18),
    Sketcher.Constraint("Horizontal", 19),
    Sketcher.Constraint("Horizontal", 5, 2, 8, 2),
    Sketcher.Constraint("Horizontal", 7, 2, 10, 2),
    Sketcher.Constraint("Vertical", 7, 2, 12, 2),
    Sketcher.Constraint("Equal", 7, 17),
    Sketcher.Constraint("DistanceX", 1, 1, 1, 2, Q("120 mm")),
    Sketcher.Constraint("DistanceX", 5, 1, 5, 2, Q("7 mm")),
    Sketcher.Constraint("DistanceX", 13, 1, 13, 2, Q("12 mm")),
    Sketcher.Constraint("DistanceY", 4, 2, 4, 1, Q("10 mm")),
    Sketcher.Constraint("DistanceY", 12, 2, 12, 1, Q("18 mm")),
    Sketcher.Constraint("DistanceY", 0, 2, 0, 1, Q("9.5 mm")),
    Sketcher.Constraint("DistanceX", 4, 2, 3, 2, Q("30 mm")),
    Sketcher.Constraint("DistanceY", 0, 2, 4, 2, Q("28 mm")),
    Sketcher.Constraint("DistanceX", 5, 2, 8, 2, Q("18 mm")),
    Sketcher.Constraint("DistanceY", 11, 2, 16, 2, Q("13.5 mm")),
    Sketcher.Constraint("DistanceX", 14, 2, 16, 2, Q("10.216001 mm")),
    Sketcher.Constraint("DistanceX", 9, 1, 9, 2, Q("7.773636 mm")),
    Sketcher.Constraint("DistanceY", 16, 2, 16, 1, Q("2.178593 mm")),
    Sketcher.Constraint("DistanceX", 9, 2, -1, 1, Q("37.960611 mm")),
    Sketcher.Constraint("DistanceY", 12, 2, -1, 1, Q("11.13203 mm")),
    Sketcher.Constraint("DistanceY", 0, 2, -1, 1, Q("52.269606 mm")),
])
pad12 = doc.addObject("PartDesign::Pad", "Pad011")
body.addObject(pad12)
pad12.Profile = sketch19
pad12.Length = 3

sketch20 = doc.addObject("Sketcher::SketchObject", "Sketch019")
body.addObject(sketch20)
sketch20.AttachmentSupport = (doc.YZ_Plane, [""])
sketch20.MapMode = "FlatFace"
sketch20.AttachmentOffset = App.Placement(App.Vector(0, 0, -73.734247), App.Rotation())
add_polygon(sketch20, [(8.9, -9), (11, -6.9), (11, -9)])
add_polygon(sketch20, [(11, -0.9), (8.9, 1.1), (11, 1.1)])
sketch20.addConstraint([
    Sketcher.Constraint("Vertical", 1),
    Sketcher.Constraint("Horizontal", 2),
    Sketcher.Constraint("Horizontal", 4),
    Sketcher.Constraint("Vertical", 5),
    Sketcher.Constraint("Perpendicular", 0, 3),
    Sketcher.Constraint("Vertical", 2, 2, 3, 2),
    Sketcher.Constraint("Vertical", 1, 2, 4, 2),
    Sketcher.Constraint("Equal", 4, 1),
    Sketcher.Constraint("DistanceY", 0, 2, 5, 2, Q("6 mm")),
    Sketcher.Constraint("DistanceX", -1, 1, 0, 2, Q("10.96 mm")),
    Sketcher.Constraint("DistanceX", 2, 2, 2, 1, Q("2.0325 mm")),
    Sketcher.Constraint("DistanceY", 0, 2, -1, 1, Q("6.929606 mm")),
])
pad13 = doc.addObject("PartDesign::Pad", "Pad012")
body.addObject(pad13)
pad13.Profile = sketch20
pad13.Length = 13

sketch21 = doc.addObject("Sketcher::SketchObject", "Sketch020")
body.addObject(sketch21)
sketch21.AttachmentSupport = (doc.XZ_Plane, [""])
sketch21.MapMode = "FlatFace"
sketch21.AttachmentOffset = App.Placement(App.Vector(0, 0, -1.56), App.Rotation())
add_polygon(sketch21, [(-70.7, -21.8), (-70.7, -14.4), (-66.7, -14.4), (-66.7, -21.8)])
sketch21.addConstraint([
    Sketcher.Constraint("Vertical", 0),
    Sketcher.Constraint("Horizontal", 1),
    Sketcher.Constraint("Vertical", 2),
    Sketcher.Constraint("Horizontal", 3),
    Sketcher.Constraint("DistanceX", 1, 1, 1, 2, Q("4 mm")),
    Sketcher.Constraint("DistanceY", 0, 1, 0, 2, Q("7.4 mm")),
    Sketcher.Constraint("DistanceX", 0, 2, -1, 1, Q("70.734247 mm")),
    Sketcher.Constraint("DistanceY", 0, 2, -1, 1, Q("14.424606 mm")),
])
pad14 = doc.addObject("PartDesign::Pad", "Pad013")
body.addObject(pad14)
pad14.Profile = sketch21
pad14.Length = 7.31
pad14.Reversed = True

sketch22 = doc.addObject("Sketcher::SketchObject", "Sketch021")
body.addObject(sketch22)
sketch22.AttachmentSupport = (doc.YZ_Plane, [""])
sketch22.MapMode = "FlatFace"
sketch22.AttachmentOffset = App.Placement(App.Vector(0, 0, -70.734247), App.Rotation())
sketch22.addGeometry(Part.Circle(App.Vector(5.9, -18.1, 0), App.Vector(0, 0, 1), 1.8), False)
sketch22.addConstraint([
    Sketcher.Constraint("Diameter", 0, Q("3.5 mm")),
    Sketcher.Constraint("DistanceX", -1, 1, 0, 3, Q("5.87 mm")),
    Sketcher.Constraint("DistanceY", 0, 3, -1, 1, Q("18.124606 mm")),
])
pad15 = doc.addObject("PartDesign::Pad", "Pad014")
body.addObject(pad15)
pad15.Profile = sketch22
pad15.Length = 1.5
pad15.Reversed = True

doc.recompute()
